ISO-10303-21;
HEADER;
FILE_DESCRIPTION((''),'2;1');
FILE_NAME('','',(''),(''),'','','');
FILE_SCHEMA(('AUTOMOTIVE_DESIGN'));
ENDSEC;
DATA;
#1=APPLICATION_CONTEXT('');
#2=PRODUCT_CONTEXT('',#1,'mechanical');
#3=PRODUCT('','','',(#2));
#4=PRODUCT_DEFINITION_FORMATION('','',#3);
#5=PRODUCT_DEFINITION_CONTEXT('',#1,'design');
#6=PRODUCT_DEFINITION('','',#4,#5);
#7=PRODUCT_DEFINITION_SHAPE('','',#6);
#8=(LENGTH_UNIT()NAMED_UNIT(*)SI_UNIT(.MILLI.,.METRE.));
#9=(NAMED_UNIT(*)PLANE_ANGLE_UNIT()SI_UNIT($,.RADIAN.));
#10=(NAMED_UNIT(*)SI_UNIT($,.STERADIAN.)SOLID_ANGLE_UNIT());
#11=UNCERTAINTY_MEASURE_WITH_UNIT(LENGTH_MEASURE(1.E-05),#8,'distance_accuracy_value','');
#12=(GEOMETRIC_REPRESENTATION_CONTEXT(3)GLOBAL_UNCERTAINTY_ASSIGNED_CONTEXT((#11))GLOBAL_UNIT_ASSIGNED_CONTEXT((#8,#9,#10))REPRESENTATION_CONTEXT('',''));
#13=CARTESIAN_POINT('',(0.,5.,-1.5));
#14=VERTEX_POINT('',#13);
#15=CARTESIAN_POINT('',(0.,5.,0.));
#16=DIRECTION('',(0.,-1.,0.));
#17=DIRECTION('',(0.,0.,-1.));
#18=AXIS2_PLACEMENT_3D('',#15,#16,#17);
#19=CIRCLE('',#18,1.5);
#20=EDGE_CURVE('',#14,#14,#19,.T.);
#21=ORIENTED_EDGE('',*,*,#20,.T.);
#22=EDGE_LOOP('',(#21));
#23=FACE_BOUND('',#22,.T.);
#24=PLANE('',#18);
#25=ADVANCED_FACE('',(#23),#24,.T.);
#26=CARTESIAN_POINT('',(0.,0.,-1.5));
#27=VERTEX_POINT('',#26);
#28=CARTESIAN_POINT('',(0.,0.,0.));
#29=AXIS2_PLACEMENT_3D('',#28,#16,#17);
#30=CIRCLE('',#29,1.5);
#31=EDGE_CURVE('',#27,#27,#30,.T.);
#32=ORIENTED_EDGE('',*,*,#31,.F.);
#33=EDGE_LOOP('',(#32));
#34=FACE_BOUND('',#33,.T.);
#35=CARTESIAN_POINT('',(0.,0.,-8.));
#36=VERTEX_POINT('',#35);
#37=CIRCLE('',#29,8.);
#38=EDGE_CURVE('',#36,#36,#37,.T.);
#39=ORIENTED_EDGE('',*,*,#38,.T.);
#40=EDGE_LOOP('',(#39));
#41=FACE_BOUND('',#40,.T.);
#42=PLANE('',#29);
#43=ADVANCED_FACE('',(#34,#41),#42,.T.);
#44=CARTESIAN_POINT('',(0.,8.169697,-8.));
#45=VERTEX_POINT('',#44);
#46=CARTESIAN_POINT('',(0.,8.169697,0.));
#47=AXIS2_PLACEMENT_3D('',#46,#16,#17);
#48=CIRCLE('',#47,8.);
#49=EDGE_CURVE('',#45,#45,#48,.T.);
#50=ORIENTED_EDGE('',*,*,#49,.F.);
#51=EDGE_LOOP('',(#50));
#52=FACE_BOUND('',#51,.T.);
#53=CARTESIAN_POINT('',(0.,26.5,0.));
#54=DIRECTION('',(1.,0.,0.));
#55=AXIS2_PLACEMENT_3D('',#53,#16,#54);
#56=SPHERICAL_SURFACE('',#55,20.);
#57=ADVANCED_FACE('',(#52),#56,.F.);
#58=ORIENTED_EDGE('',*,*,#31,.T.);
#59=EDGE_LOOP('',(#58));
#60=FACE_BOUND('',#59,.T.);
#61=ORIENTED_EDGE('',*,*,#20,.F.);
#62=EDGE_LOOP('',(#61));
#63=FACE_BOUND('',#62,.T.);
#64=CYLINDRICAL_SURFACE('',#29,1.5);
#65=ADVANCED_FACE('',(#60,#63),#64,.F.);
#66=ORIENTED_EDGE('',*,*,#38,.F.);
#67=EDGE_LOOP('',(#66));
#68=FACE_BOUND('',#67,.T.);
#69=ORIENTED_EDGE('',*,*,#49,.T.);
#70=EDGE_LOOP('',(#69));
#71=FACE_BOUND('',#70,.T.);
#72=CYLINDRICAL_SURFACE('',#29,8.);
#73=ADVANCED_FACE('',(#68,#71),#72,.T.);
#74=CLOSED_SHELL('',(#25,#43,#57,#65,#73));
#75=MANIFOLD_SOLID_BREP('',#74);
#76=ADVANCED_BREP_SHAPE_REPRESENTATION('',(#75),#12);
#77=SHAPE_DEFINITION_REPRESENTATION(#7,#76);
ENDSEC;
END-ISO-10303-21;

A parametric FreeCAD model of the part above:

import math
import FreeCAD as App
import Part
import Sketcher
Q = App.Units.Quantity

doc = App.newDocument("Part")
body = doc.addObject("PartDesign::Body", "Body")

# Sketch on XY plane
sketch1 = body.newObject("Sketcher::SketchObject", "Sketch")
sketch1.AttachmentSupport = (doc.getObject("XY_Plane"), [""])
sketch1.MapMode = "FlatFace"
sketch1.addGeometry(Part.LineSegment(App.Vector(1.5, 0, 0), App.Vector(8, 0, 0)), False)
sketch1.addGeometry(Part.LineSegment(App.Vector(8, 0, 0), App.Vector(8, 8.2, 0)), False)
sketch1.addGeometry(Part.ArcOfCircle(Part.Circle(App.Vector(0, 26.5, 0), App.Vector(0, 0, 1), 20), math.radians(-90), math.radians(-66)), False)
sketch1.addGeometry(Part.LineSegment(App.Vector(0, 6.5, 0), App.Vector(0, 5, 0)), False)
sketch1.addGeometry(Part.LineSegment(App.Vector(0, 5, 0), App.Vector(1.5, 5, 0)), False)
sketch1.addGeometry(Part.LineSegment(App.Vector(1.5, 5, 0), App.Vector(1.5, 0, 0)), False)
sketch1.addConstraint(Sketcher.Constraint("Coincident", 0, 2, 1, 1))
sketch1.addConstraint(Sketcher.Constraint("Coincident", 1, 2, 2, 2))
sketch1.addConstraint(Sketcher.Constraint("Coincident", 2, 1, 3, 1))
sketch1.addConstraint(Sketcher.Constraint("Coincident", 3, 2, 4, 1))
sketch1.addConstraint(Sketcher.Constraint("Coincident", 4, 2, 5, 1))
sketch1.addConstraint(Sketcher.Constraint("Coincident", 5, 2, 0, 1))
sketch1.addConstraint(Sketcher.Constraint("Horizontal", 0))
sketch1.addConstraint(Sketcher.Constraint("Vertical", 1))
sketch1.addConstraint(Sketcher.Constraint("Vertical", 3))
sketch1.addConstraint(Sketcher.Constraint("Horizontal", 4))
sketch1.addConstraint(Sketcher.Constraint("Vertical", 5))
sketch1.addConstraint(Sketcher.Constraint("PointOnObject", 2, 3, -2))
sketch1.addConstraint(Sketcher.Constraint("PointOnObject", 0, 2, -1))
sketch1.addConstraint(Sketcher.Constraint("PointOnObject", 2, 1, -2))
sketch1.addConstraint(Sketcher.Constraint("Equal", 4, 3))
sketch1.addConstraint(Sketcher.Constraint("Radius", 2, Q("20 mm")))
sketch1.addConstraint(Sketcher.Constraint("DistanceY", 5, 2, 5, 1, Q("5 mm")))
sketch1.addConstraint(Sketcher.Constraint("DistanceX", 0, 1, 0, 2, Q("6.5 mm")))
sketch1.addConstraint(Sketcher.Constraint("DistanceX", 4, 1, 4, 2, Q("1.5 mm")))
revolution = body.newObject("PartDesign::Revolution", "Revolution")
revolution.Profile = sketch1
revolution.ReferenceAxis = (sketch1, ["V_Axis"])
revolution.Angle = 360

doc.recompute()
